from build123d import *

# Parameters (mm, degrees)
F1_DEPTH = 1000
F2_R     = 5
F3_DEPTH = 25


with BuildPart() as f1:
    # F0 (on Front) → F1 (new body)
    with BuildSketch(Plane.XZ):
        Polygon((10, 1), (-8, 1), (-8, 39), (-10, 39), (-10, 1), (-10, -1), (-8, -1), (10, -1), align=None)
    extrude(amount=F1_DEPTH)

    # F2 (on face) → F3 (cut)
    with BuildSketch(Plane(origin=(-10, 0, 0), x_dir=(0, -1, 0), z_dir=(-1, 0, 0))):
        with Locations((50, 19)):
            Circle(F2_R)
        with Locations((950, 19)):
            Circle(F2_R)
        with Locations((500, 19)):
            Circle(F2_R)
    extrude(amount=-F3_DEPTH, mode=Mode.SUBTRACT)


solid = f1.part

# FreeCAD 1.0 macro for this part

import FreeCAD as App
import Part
import Sketcher
from FreeCAD import Vector


def add_polygon(sketch, points):
    """Adds a closed chain of lines whose ends are joined by coincident constraints."""
    first, n = sketch.GeometryCount, len(points)
    for a, b in zip(points, points[1:] + points[:1]):
        sketch.addGeometry(Part.LineSegment(App.Vector(*a, 0), App.Vector(*b, 0)), False)
    for i in range(n):
        sketch.addConstraint(Sketcher.Constraint("Coincident", first + i, 2, first + (i + 1) % n, 1))

doc = App.newDocument("Part")
body = doc.addObject("PartDesign::Body", "Body")

# Sketch on XZ plane
sketch1 = body.newObject("Sketcher::SketchObject", "Sketch")
sketch1.AttachmentSupport = (doc.getObject("XZ_Plane"), [""])
sketch1.MapMode = "FlatFace"
add_polygon(sketch1, [(10, 1), (-8, 1), (-8, 39), (-10, 39), (-10, -1), (10, -1)])  # lines 0-5
sketch1.addConstraint([
    Sketcher.Constraint("Horizontal", 0),
    Sketcher.Constraint("Vertical", 1),
    Sketcher.Constraint("Horizontal", 2),
    Sketcher.Constraint("Vertical", 3),
    Sketcher.Constraint("Horizontal", 4),
    Sketcher.Constraint("Vertical", 5),
    Sketcher.Constraint("Symmetric", 3, 2, 5, 2, -1, 1),
    Sketcher.Constraint("Equal", 2, 5),
    Sketcher.Constraint("DistanceX", 0, 2, 0, 1, 18.0),
    Sketcher.Constraint("DistanceX", 2, 2, 2, 1, 2.0),
    Sketcher.Constraint("DistanceY", 1, 1, 1, 2, 38.0),
])
pad1 = body.newObject("PartDesign::Pad", "Pad")
pad1.Profile = sketch1
pad1.Length = 1000

# Sketch on YZ plane
sketch2 = body.newObject("Sketcher::SketchObject", "Sketch001")
sketch2.AttachmentSupport = (doc.getObject("YZ_Plane"), [""])
sketch2.MapMode = "FlatFace"
sketch2.AttachmentOffset = App.Placement(Vector(0, 0, -10), App.Rotation())
sketch2.addGeometry([
    Part.Circle(Vector(-50, 19, 0), Vector(0, 0, 1), 5),
    Part.Circle(Vector(-950, 19, 0), Vector(0, 0, 1), 5),
    Part.Circle(Vector(-500, 19, 0), Vector(0, 0, 1), 5),
], False)
sketch2.addConstraint([
    Sketcher.Constraint("Equal", 0, 1),
    Sketcher.Constraint("Equal", 1, 2),
    Sketcher.Constraint("Horizontal", 0, 3, 1, 3),
    Sketcher.Constraint("Horizontal", 1, 3, 2, 3),
    Sketcher.Constraint("Diameter", 0, 10.0),
    Sketcher.Constraint("DistanceX", 0, 3, -1, 1, 50.0),
    Sketcher.Constraint("DistanceY", -1, 1, 0, 3, 19.0),
    Sketcher.Constraint("DistanceX", 1, 3, -1, 1, 950.0),
    Sketcher.Constraint("DistanceX", 2, 3, -1, 1, 500.0),
])
pocket1 = body.newObject("PartDesign::Pocket", "Pocket")
pocket1.Profile = sketch2
pocket1.Length = 25
pocket1.Reversed = True

doc.recompute()
